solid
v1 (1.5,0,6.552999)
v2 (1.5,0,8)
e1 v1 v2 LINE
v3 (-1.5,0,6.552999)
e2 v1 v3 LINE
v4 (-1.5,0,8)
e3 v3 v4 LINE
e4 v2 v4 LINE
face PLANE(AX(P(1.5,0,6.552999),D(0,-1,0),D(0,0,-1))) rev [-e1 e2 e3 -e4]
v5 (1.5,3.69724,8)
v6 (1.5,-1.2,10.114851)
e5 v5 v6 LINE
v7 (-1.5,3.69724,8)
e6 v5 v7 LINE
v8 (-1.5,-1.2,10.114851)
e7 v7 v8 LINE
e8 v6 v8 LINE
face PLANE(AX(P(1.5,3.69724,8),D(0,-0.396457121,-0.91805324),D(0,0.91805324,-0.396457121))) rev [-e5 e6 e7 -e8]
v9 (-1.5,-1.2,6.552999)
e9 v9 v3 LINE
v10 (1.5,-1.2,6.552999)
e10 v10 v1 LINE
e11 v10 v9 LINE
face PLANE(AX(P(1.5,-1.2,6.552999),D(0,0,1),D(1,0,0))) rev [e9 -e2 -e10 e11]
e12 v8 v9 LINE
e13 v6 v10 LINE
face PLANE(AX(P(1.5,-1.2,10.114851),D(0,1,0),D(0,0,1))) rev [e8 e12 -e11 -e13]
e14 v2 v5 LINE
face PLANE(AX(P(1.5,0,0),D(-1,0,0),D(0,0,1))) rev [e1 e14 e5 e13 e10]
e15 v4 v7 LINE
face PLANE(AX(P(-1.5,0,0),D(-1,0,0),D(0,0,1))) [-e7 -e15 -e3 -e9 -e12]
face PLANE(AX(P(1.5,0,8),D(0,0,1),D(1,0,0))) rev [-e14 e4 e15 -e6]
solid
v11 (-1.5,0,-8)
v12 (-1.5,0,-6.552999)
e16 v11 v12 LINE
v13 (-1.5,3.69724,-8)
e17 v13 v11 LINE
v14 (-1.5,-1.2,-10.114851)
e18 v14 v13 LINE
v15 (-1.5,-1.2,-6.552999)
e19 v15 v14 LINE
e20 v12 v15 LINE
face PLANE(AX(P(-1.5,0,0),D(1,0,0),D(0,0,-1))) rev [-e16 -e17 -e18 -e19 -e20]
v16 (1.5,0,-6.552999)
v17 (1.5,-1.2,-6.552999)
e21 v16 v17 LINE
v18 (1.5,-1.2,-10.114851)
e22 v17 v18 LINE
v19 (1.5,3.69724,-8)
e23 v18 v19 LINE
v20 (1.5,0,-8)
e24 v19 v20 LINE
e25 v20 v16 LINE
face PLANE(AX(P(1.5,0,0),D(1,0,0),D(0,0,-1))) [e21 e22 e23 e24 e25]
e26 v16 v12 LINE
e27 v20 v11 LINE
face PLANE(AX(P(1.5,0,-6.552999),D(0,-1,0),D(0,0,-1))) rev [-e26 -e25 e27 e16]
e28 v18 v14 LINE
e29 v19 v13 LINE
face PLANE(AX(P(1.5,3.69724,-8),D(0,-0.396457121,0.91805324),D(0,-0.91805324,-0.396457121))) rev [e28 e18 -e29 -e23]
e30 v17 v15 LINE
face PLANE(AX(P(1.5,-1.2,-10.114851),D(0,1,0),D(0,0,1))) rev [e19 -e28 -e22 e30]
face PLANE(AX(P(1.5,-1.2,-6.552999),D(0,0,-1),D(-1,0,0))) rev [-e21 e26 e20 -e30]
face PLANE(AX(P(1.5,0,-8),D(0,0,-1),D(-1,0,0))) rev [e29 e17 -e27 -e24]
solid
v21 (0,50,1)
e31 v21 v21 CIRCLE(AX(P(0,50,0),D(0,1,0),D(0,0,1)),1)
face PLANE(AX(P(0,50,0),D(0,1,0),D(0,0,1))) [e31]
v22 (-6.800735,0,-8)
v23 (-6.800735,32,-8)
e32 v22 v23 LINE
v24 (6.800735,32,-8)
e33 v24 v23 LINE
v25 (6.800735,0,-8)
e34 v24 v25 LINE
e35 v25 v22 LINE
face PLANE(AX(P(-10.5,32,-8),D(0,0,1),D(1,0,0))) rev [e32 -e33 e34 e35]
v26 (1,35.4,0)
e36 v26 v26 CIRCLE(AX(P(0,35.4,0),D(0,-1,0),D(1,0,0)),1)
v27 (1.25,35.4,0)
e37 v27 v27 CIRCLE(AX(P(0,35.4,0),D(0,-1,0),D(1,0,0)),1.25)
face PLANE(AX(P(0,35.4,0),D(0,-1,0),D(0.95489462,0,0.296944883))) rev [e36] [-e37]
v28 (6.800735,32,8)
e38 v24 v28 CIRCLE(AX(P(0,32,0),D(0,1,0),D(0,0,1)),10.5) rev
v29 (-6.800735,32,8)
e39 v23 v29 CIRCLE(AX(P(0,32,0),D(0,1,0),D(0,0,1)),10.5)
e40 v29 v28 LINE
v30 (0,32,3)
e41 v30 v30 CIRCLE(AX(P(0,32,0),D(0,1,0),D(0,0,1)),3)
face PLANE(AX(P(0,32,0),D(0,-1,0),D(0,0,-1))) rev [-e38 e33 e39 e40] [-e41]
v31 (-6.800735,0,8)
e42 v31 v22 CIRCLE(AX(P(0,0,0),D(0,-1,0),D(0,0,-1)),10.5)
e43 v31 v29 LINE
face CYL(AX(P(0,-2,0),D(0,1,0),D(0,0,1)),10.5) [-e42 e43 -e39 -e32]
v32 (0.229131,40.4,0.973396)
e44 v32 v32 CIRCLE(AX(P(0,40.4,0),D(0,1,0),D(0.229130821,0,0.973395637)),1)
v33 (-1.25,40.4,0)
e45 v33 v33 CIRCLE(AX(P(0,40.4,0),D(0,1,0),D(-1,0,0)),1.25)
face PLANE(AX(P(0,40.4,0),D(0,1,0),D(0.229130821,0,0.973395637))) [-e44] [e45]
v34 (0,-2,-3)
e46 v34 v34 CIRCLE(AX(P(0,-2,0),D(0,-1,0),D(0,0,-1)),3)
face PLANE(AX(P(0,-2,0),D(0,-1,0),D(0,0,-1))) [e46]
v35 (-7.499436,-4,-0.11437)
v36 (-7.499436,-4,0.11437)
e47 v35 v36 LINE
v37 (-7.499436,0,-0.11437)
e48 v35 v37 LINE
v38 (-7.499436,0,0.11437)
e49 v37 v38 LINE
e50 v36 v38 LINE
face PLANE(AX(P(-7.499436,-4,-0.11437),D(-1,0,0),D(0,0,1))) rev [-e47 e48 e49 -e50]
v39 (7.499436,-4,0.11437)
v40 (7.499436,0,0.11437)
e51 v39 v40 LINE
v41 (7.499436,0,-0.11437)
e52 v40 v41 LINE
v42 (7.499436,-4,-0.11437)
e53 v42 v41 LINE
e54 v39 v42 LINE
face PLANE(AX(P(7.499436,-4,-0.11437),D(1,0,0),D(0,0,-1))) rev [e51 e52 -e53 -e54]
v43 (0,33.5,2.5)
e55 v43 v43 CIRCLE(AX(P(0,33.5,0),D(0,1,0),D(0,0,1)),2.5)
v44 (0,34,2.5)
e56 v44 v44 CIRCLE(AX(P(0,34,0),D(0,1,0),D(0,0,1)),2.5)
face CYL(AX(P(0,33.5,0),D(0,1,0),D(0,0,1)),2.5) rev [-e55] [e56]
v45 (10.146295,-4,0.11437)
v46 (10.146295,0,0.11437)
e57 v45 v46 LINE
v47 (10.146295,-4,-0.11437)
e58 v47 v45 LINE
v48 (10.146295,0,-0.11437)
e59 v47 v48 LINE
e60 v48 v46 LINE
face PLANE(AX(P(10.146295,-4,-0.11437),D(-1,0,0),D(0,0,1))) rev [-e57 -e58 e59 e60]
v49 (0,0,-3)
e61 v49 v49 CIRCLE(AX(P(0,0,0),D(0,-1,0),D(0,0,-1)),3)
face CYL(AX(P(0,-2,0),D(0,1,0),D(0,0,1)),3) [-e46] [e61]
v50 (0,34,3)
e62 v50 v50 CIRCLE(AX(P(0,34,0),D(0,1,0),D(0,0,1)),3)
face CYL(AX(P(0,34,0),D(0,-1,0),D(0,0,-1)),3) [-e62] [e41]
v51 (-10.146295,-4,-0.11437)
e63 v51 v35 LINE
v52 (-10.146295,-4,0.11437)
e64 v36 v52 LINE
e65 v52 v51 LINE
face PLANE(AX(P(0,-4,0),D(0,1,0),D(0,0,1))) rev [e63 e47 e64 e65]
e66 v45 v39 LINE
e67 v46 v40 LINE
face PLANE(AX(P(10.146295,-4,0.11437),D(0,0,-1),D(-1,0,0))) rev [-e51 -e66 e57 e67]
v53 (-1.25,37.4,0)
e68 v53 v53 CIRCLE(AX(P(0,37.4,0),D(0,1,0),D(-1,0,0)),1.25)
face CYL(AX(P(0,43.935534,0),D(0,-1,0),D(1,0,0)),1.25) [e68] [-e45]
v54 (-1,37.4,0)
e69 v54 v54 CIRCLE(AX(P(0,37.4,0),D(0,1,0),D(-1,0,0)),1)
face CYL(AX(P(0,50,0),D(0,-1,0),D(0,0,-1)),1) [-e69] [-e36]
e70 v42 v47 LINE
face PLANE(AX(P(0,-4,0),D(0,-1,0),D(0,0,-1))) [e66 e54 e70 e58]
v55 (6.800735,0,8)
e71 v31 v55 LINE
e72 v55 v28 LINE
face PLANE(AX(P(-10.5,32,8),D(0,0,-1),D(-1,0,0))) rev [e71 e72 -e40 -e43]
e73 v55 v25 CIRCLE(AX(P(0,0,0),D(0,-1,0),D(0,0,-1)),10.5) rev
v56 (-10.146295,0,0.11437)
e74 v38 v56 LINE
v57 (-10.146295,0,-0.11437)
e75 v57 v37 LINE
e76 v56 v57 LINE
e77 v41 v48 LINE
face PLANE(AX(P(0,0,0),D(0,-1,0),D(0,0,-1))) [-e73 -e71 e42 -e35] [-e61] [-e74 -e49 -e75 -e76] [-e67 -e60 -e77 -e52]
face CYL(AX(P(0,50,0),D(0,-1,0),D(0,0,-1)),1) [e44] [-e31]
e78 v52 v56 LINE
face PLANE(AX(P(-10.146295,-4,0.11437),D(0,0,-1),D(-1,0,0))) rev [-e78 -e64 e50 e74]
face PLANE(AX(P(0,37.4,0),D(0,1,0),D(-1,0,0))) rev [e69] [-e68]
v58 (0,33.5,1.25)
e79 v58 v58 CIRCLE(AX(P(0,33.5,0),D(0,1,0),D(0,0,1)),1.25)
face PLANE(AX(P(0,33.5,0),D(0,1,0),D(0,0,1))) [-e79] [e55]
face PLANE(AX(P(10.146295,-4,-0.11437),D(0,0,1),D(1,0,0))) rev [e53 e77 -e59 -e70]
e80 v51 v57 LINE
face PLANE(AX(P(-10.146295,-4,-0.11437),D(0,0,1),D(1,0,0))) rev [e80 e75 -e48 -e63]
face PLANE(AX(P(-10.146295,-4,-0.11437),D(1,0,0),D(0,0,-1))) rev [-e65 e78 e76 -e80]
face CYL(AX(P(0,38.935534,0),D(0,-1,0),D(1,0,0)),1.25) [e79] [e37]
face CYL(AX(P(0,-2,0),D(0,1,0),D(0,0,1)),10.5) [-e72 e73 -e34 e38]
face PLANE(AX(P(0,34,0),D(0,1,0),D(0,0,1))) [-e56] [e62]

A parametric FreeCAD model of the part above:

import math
import FreeCAD as App
import Part
import Sketcher

V = App.Vector


def add_polygon(sketch, points):
    """Adds a closed chain of lines whose ends are joined by coincident constraints."""
    first, n = sketch.GeometryCount, len(points)
    for a, b in zip(points, points[1:] + points[:1]):
        sketch.addGeometry(Part.LineSegment(App.Vector(*a, 0), App.Vector(*b, 0)), False)
    for i in range(n):
        sketch.addConstraint(Sketcher.Constraint("Coincident", first + i, 2, first + (i + 1) % n, 1))

doc = App.newDocument("Part")
body = doc.addObject("PartDesign::Body", "Body")

# Sketch on XZ plane
sketch1 = body.newObject("Sketcher::SketchObject", "Sketch")
sketch1.AttachmentSupport = (doc.getObject("XZ_Plane"), [""])
sketch1.MapMode = "FlatFace"
add_polygon(sketch1, [(-10, -8), (-10, 8), (10, 8), (10, -8)])  # lines 0-3
sketch1.addConstraint(Sketcher.Constraint("Vertical", 0))
sketch1.addConstraint(Sketcher.Constraint("Horizontal", 1))
sketch1.addConstraint(Sketcher.Constraint("Vertical", 2))
sketch1.addConstraint(Sketcher.Constraint("Horizontal", 3))
sketch1.addConstraint(Sketcher.Constraint("Symmetric", 0, 2, 2, 2, -1, 1))
sketch1.addConstraint(Sketcher.Constraint("DistanceX", 1, 1, 1, 2, 21.0))
sketch1.addConstraint(Sketcher.Constraint("DistanceY", 0, 1, 0, 2, 16.0))
pad1 = body.newObject("PartDesign::Pad", "Pad")
pad1.Profile = sketch1
pad1.Length = 32
pad1.Reversed = True

# Sketch on XZ plane
sketch2 = body.newObject("Sketcher::SketchObject", "Sketch001")
sketch2.AttachmentSupport = (doc.getObject("XZ_Plane"), [""])
sketch2.MapMode = "FlatFace"
sketch2.addGeometry(Part.Circle(V(0, 0, 0), V(0, 0, 1), 3), False)
sketch2.addConstraint(Sketcher.Constraint("Coincident", 0, 3, -1, 1))
sketch2.addConstraint(Sketcher.Constraint("Diameter", 0, 6.0))
pad2 = body.newObject("PartDesign::Pad", "Pad001")
pad2.Profile = sketch2
pad2.Length = 2

# Sketch on XZ plane
sketch3 = body.newObject("Sketcher::SketchObject", "Sketch002")
sketch3.AttachmentSupport = (doc.getObject("XZ_Plane"), [""])
sketch3.MapMode = "FlatFace"
sketch3.AttachmentOffset = App.Placement(V(0, 0, -32), App.Rotation())
sketch3.addGeometry(Part.ArcOfCircle(Part.Circle(V(0, 0, 0), V(0, 0, 1), 10.5), math.radians(130), math.radians(180)), False)
sketch3.addGeometry(Part.LineSegment(V(-10.5, 0, 0), V(-10.5, 8, 0)), False)
sketch3.addGeometry(Part.LineSegment(V(-10.5, 8, 0), V(-6.8, 8, 0)), False)
sketch3.addGeometry(Part.LineSegment(V(10.5, 8, 0), V(10.5, 0, 0)), False)
sketch3.addGeometry(Part.ArcOfCircle(Part.Circle(V(0, 0, 0), V(0, 0, 1), 10.5), math.radians(0), math.radians(50)), False)
sketch3.addGeometry(Part.LineSegment(V(6.8, 8, 0), V(10.5, 8, 0)), False)
sketch3.addGeometry(Part.LineSegment(V(10.5, -8, 0), V(6.8, -8, 0)), False)
sketch3.addGeometry(Part.ArcOfCircle(Part.Circle(V(0, 0, 0), V(0, 0, 1), 10.5), math.radians(-50), math.radians(0)), False)
sketch3.addGeometry(Part.LineSegment(V(10.5, 0, 0), V(10.5, -8, 0)), False)
sketch3.addGeometry(Part.ArcOfCircle(Part.Circle(V(0, 0, 0), V(0, 0, 1), 10.5), math.radians(180), math.radians(230)), False)
sketch3.addGeometry(Part.LineSegment(V(-6.8, -8, 0), V(-10.5, -8, 0)), False)
sketch3.addGeometry(Part.LineSegment(V(-10.5, -8, 0), V(-10.5, 0, 0)), False)
sketch3.addConstraint(Sketcher.Constraint("Tangent", 0, 2, 1, 1))
sketch3.addConstraint(Sketcher.Constraint("Coincident", 1, 2, 2, 1))
sketch3.addConstraint(Sketcher.Constraint("Coincident", 2, 2, 0, 1))
sketch3.addConstraint(Sketcher.Constraint("Tangent", 3, 2, 4, 1))
sketch3.addConstraint(Sketcher.Constraint("Coincident", 4, 2, 5, 1))
sketch3.addConstraint(Sketcher.Constraint("Coincident", 5, 2, 3, 1))
sketch3.addConstraint(Sketcher.Constraint("Coincident", 6, 2, 7, 1))
sketch3.addConstraint(Sketcher.Constraint("Tangent", 7, 2, 8, 1))
sketch3.addConstraint(Sketcher.Constraint("Coincident", 8, 2, 6, 1))
sketch3.addConstraint(Sketcher.Constraint("Coincident", 9, 2, 10, 1))
sketch3.addConstraint(Sketcher.Constraint("Coincident", 10, 2, 11, 1))
sketch3.addConstraint(Sketcher.Constraint("Tangent", 11, 2, 9, 1))
sketch3.addConstraint(Sketcher.Constraint("Vertical", 1))
sketch3.addConstraint(Sketcher.Constraint("Horizontal", 2))
sketch3.addConstraint(Sketcher.Constraint("Vertical", 3))
sketch3.addConstraint(Sketcher.Constraint("Horizontal", 5))
sketch3.addConstraint(Sketcher.Constraint("Horizontal", 6))
sketch3.addConstraint(Sketcher.Constraint("Vertical", 8))
sketch3.addConstraint(Sketcher.Constraint("Horizontal", 10))
sketch3.addConstraint(Sketcher.Constraint("Vertical", 11))
sketch3.addConstraint(Sketcher.Constraint("Coincident", 0, 3, -1, 1))
sketch3.addConstraint(Sketcher.Constraint("Coincident", 4, 3, -1, 1))
sketch3.addConstraint(Sketcher.Constraint("Coincident", 7, 3, -1, 1))
sketch3.addConstraint(Sketcher.Constraint("Coincident", 9, 3, -1, 1))
sketch3.addConstraint(Sketcher.Constraint("Equal", 0, 4))
sketch3.addConstraint(Sketcher.Constraint("Equal", 4, 7))
sketch3.addConstraint(Sketcher.Constraint("Equal", 7, 9))
sketch3.addConstraint(Sketcher.Constraint("Horizontal", 2, 2, 4, 2))
sketch3.addConstraint(Sketcher.Constraint("Horizontal", 8, 2, 9, 2))
sketch3.addConstraint(Sketcher.Constraint("Vertical", 4, 2, 6, 2))
sketch3.addConstraint(Sketcher.Constraint("Radius", 0, 10.5))
sketch3.addConstraint(Sketcher.Constraint("DistanceY", 1, 1, 1, 2, 8.0))
pocket1 = body.newObject("PartDesign::Pocket", "Pocket")
pocket1.Profile = sketch3
pocket1.Type = "ThroughAll"
pocket1.Reversed = True

# Sketch on XZ plane
sketch4 = body.newObject("Sketcher::SketchObject", "Sketch003")
sketch4.AttachmentSupport = (doc.getObject("XZ_Plane"), [""])
sketch4.MapMode = "FlatFace"
add_polygon(sketch4, [(-10.15, 0.11), (-10.15, -0.11), (-7.5, -0.11), (-7.5, 0.11)])  # lines 0-3
add_polygon(sketch4, [(7.5, 0.11), (7.5, -0.11), (10.15, -0.11), (10.15, 0.11)])  # lines 4-7
sketch4.addConstraint(Sketcher.Constraint("Vertical", 0))
sketch4.addConstraint(Sketcher.Constraint("Horizontal", 1))
sketch4.addConstraint(Sketcher.Constraint("Vertical", 2))
sketch4.addConstraint(Sketcher.Constraint("Horizontal", 3))
sketch4.addConstraint(Sketcher.Constraint("Vertical", 4))
sketch4.addConstraint(Sketcher.Constraint("Horizontal", 5))
sketch4.addConstraint(Sketcher.Constraint("Vertical", 6))
sketch4.addConstraint(Sketcher.Constraint("Horizontal", 7))
sketch4.addConstraint(Sketcher.Constraint("Symmetric", 2, 2, 4, 2, -1, 1))
sketch4.addConstraint(Sketcher.Constraint("Symmetric", 0, 2, 6, 2, -1, 1))
sketch4.addConstraint(Sketcher.Constraint("Horizontal", 1, 2, 4, 2))
sketch4.addConstraint(Sketcher.Constraint("DistanceX", 1, 1, 1, 2, 2.64686))
sketch4.addConstraint(Sketcher.Constraint("DistanceY", 0, 2, 0, 1, 0.228741))
sketch4.addConstraint(Sketcher.Constraint("DistanceX", 1, 2, 4, 2, 14.998871))
pad3 = body.newObject("PartDesign::Pad", "Pad002")
pad3.Profile = sketch4
pad3.Length = 4

# Sketch on XZ plane
sketch5 = body.newObject("Sketcher::SketchObject", "Sketch004")
sketch5.AttachmentSupport = (doc.getObject("XZ_Plane"), [""])
sketch5.MapMode = "FlatFace"
sketch5.AttachmentOffset = App.Placement(V(0, 0, -34), App.Rotation())
sketch5.addGeometry(Part.Circle(V(0, 0, 0), V(0, 0, 1), 3), False)
sketch5.addConstraint(Sketcher.Constraint("Coincident", 0, 3, -1, 1))
sketch5.addConstraint(Sketcher.Constraint("Diameter", 0, 6.0))
pad4 = body.newObject("PartDesign::Pad", "Pad003")
pad4.Profile = sketch5
pad4.Length = 2

# Sketch on XZ plane
sketch6 = body.newObject("Sketcher::SketchObject", "Sketch005")
sketch6.AttachmentSupport = (doc.getObject("XZ_Plane"), [""])
sketch6.MapMode = "FlatFace"
sketch6.AttachmentOffset = App.Placement(V(0, 0, -34), App.Rotation())
sketch6.addGeometry(Part.Circle(V(0, 0, 0), V(0, 0, 1), 2.5), False)
sketch6.addConstraint(Sketcher.Constraint("Coincident", 0, 3, -1, 1))
sketch6.addConstraint(Sketcher.Constraint("Diameter", 0, 5.0))
pocket2 = body.newObject("PartDesign::Pocket", "Pocket001")
pocket2.Profile = sketch6
pocket2.Length = 0.5
pocket2.Reversed = True

# Sketch on XZ plane
sketch7 = body.newObject("Sketcher::SketchObject", "Sketch006")
sketch7.AttachmentSupport = (doc.getObject("XZ_Plane"), [""])
sketch7.MapMode = "FlatFace"
sketch7.AttachmentOffset = App.Placement(V(0, 0, -33.5), App.Rotation())
sketch7.addGeometry(Part.Circle(V(0, 0, 0), V(0, 0, 1), 1), False)
sketch7.addConstraint(Sketcher.Constraint("Coincident", 0, 3, -1, 1))
sketch7.addConstraint(Sketcher.Constraint("Diameter", 0, 2.0))
pad5 = body.newObject("PartDesign::Pad", "Pad004")
pad5.Profile = sketch7
pad5.Length = 16.5
pad5.Reversed = True

# Sketch on XZ plane
sketch8 = body.newObject("Sketcher::SketchObject", "Sketch007")
sketch8.AttachmentSupport = (doc.getObject("XZ_Plane"), [""])
sketch8.MapMode = "FlatFace"
sketch8.AttachmentOffset = App.Placement(V(0, 0, -33.5), App.Rotation())
sketch8.addGeometry(Part.Circle(V(0, 0, 0), V(0, 0, 1), 1.2), False)
sketch8.addConstraint(Sketcher.Constraint("Coincident", 0, 3, -1, 1))
sketch8.addConstraint(Sketcher.Constraint("Diameter", 0, 2.5))
pad6 = body.newObject("PartDesign::Pad", "Pad005")
pad6.Profile = sketch8
pad6.Length = 1.9
pad6.Reversed = True

# Sketch on XZ plane
sketch9 = body.newObject("Sketcher::SketchObject", "Sketch008")
sketch9.AttachmentSupport = (doc.getObject("XZ_Plane"), [""])
sketch9.MapMode = "FlatFace"
sketch9.AttachmentOffset = App.Placement(V(0, 0, -37.4), App.Rotation())
sketch9.addGeometry(Part.Circle(V(0, 0, 0), V(0, 0, 1), 1.2), False)
sketch9.addGeometry(Part.Circle(V(0, 0, 0), V(0, 0, 1), 1), False)
sketch9.addConstraint(Sketcher.Constraint("Coincident", 0, 3, -1, 1))
sketch9.addConstraint(Sketcher.Constraint("Coincident", 1, 3, -1, 1))
sketch9.addConstraint(Sketcher.Constraint("Diameter", 1, 2.0))
sketch9.addConstraint(Sketcher.Constraint("Diameter", 0, 2.5))
pad7 = body.newObject("PartDesign::Pad", "Pad006")
pad7.Profile = sketch9
pad7.Length = 3
pad7.Reversed = True
body2 = doc.addObject("PartDesign::Body", "Body001")

# Sketch on YZ plane
sketch10 = body2.newObject("Sketcher::SketchObject", "Sketch009")
sketch10.AttachmentSupport = (doc.getObject("YZ_Plane001"), [""])
sketch10.MapMode = "FlatFace"
add_polygon(sketch10, [(-1.2, -10.1), (3.7, -8), (0, -8), (0, -6.6), (-1.2, -6.6)])  # lines 0-4
sketch10.addConstraint(Sketcher.Constraint("Horizontal", 1))
sketch10.addConstraint(Sketcher.Constraint("Vertical", 2))
sketch10.addConstraint(Sketcher.Constraint("Horizontal", 3))
sketch10.addConstraint(Sketcher.Constraint("Vertical", 4))
sketch10.addConstraint(Sketcher.Constraint("PointOnObject", 1, 2, -2))
sketch10.addConstraint(Sketcher.Constraint("DistanceX", 3, 2, 3, 1, 1.2))
sketch10.addConstraint(Sketcher.Constraint("DistanceY", 0, 2, -1, 1, 8.0))
sketch10.addConstraint(Sketcher.Constraint("DistanceY", 2, 1, 2, 2, 1.447001))
sketch10.addConstraint(Sketcher.Constraint("DistanceX", 1, 2, 1, 1, 3.69724))
sketch10.addConstraint(Sketcher.Constraint("DistanceY", 4, 2, 4, 1, 3.561852))
pad8 = body2.newObject("PartDesign::Pad", "Pad007")
pad8.Profile = sketch10
pad8.Length = 3
pad8.Midplane = True
body3 = doc.addObject("PartDesign::Body", "Body002")

# Sketch on YZ plane
sketch11 = body3.newObject("Sketcher::SketchObject", "Sketch010")
sketch11.AttachmentSupport = (doc.getObject("YZ_Plane002"), [""])
sketch11.MapMode = "FlatFace"
add_polygon(sketch11, [(0, 8), (3.7, 8), (-1.2, 10.1), (-1.2, 6.6), (0, 6.6)])  # lines 0-4
sketch11.addConstraint(Sketcher.Constraint("Horizontal", 0))
sketch11.addConstraint(Sketcher.Constraint("Vertical", 2))
sketch11.addConstraint(Sketcher.Constraint("Horizontal", 3))
sketch11.addConstraint(Sketcher.Constraint("Vertical", 4))
sketch11.addConstraint(Sketcher.Constraint("PointOnObject", 3, 2, -2))
sketch11.addConstraint(Sketcher.Constraint("DistanceX", 3, 1, 3, 2, 1.2))
sketch11.addConstraint(Sketcher.Constraint("DistanceY", -1, 1, 0, 2, 8.0))
sketch11.addConstraint(Sketcher.Constraint("DistanceY", 4, 1, 4, 2, 1.447001))
sketch11.addConstraint(Sketcher.Constraint("DistanceX", 0, 1, 0, 2, 3.69724))
sketch11.addConstraint(Sketcher.Constraint("DistanceY", 2, 2, 2, 1, 3.561852))
pad9 = body3.newObject("PartDesign::Pad", "Pad008")
pad9.Profile = sketch11
pad9.Length = 3
pad9.Midplane = True

doc.recompute()
